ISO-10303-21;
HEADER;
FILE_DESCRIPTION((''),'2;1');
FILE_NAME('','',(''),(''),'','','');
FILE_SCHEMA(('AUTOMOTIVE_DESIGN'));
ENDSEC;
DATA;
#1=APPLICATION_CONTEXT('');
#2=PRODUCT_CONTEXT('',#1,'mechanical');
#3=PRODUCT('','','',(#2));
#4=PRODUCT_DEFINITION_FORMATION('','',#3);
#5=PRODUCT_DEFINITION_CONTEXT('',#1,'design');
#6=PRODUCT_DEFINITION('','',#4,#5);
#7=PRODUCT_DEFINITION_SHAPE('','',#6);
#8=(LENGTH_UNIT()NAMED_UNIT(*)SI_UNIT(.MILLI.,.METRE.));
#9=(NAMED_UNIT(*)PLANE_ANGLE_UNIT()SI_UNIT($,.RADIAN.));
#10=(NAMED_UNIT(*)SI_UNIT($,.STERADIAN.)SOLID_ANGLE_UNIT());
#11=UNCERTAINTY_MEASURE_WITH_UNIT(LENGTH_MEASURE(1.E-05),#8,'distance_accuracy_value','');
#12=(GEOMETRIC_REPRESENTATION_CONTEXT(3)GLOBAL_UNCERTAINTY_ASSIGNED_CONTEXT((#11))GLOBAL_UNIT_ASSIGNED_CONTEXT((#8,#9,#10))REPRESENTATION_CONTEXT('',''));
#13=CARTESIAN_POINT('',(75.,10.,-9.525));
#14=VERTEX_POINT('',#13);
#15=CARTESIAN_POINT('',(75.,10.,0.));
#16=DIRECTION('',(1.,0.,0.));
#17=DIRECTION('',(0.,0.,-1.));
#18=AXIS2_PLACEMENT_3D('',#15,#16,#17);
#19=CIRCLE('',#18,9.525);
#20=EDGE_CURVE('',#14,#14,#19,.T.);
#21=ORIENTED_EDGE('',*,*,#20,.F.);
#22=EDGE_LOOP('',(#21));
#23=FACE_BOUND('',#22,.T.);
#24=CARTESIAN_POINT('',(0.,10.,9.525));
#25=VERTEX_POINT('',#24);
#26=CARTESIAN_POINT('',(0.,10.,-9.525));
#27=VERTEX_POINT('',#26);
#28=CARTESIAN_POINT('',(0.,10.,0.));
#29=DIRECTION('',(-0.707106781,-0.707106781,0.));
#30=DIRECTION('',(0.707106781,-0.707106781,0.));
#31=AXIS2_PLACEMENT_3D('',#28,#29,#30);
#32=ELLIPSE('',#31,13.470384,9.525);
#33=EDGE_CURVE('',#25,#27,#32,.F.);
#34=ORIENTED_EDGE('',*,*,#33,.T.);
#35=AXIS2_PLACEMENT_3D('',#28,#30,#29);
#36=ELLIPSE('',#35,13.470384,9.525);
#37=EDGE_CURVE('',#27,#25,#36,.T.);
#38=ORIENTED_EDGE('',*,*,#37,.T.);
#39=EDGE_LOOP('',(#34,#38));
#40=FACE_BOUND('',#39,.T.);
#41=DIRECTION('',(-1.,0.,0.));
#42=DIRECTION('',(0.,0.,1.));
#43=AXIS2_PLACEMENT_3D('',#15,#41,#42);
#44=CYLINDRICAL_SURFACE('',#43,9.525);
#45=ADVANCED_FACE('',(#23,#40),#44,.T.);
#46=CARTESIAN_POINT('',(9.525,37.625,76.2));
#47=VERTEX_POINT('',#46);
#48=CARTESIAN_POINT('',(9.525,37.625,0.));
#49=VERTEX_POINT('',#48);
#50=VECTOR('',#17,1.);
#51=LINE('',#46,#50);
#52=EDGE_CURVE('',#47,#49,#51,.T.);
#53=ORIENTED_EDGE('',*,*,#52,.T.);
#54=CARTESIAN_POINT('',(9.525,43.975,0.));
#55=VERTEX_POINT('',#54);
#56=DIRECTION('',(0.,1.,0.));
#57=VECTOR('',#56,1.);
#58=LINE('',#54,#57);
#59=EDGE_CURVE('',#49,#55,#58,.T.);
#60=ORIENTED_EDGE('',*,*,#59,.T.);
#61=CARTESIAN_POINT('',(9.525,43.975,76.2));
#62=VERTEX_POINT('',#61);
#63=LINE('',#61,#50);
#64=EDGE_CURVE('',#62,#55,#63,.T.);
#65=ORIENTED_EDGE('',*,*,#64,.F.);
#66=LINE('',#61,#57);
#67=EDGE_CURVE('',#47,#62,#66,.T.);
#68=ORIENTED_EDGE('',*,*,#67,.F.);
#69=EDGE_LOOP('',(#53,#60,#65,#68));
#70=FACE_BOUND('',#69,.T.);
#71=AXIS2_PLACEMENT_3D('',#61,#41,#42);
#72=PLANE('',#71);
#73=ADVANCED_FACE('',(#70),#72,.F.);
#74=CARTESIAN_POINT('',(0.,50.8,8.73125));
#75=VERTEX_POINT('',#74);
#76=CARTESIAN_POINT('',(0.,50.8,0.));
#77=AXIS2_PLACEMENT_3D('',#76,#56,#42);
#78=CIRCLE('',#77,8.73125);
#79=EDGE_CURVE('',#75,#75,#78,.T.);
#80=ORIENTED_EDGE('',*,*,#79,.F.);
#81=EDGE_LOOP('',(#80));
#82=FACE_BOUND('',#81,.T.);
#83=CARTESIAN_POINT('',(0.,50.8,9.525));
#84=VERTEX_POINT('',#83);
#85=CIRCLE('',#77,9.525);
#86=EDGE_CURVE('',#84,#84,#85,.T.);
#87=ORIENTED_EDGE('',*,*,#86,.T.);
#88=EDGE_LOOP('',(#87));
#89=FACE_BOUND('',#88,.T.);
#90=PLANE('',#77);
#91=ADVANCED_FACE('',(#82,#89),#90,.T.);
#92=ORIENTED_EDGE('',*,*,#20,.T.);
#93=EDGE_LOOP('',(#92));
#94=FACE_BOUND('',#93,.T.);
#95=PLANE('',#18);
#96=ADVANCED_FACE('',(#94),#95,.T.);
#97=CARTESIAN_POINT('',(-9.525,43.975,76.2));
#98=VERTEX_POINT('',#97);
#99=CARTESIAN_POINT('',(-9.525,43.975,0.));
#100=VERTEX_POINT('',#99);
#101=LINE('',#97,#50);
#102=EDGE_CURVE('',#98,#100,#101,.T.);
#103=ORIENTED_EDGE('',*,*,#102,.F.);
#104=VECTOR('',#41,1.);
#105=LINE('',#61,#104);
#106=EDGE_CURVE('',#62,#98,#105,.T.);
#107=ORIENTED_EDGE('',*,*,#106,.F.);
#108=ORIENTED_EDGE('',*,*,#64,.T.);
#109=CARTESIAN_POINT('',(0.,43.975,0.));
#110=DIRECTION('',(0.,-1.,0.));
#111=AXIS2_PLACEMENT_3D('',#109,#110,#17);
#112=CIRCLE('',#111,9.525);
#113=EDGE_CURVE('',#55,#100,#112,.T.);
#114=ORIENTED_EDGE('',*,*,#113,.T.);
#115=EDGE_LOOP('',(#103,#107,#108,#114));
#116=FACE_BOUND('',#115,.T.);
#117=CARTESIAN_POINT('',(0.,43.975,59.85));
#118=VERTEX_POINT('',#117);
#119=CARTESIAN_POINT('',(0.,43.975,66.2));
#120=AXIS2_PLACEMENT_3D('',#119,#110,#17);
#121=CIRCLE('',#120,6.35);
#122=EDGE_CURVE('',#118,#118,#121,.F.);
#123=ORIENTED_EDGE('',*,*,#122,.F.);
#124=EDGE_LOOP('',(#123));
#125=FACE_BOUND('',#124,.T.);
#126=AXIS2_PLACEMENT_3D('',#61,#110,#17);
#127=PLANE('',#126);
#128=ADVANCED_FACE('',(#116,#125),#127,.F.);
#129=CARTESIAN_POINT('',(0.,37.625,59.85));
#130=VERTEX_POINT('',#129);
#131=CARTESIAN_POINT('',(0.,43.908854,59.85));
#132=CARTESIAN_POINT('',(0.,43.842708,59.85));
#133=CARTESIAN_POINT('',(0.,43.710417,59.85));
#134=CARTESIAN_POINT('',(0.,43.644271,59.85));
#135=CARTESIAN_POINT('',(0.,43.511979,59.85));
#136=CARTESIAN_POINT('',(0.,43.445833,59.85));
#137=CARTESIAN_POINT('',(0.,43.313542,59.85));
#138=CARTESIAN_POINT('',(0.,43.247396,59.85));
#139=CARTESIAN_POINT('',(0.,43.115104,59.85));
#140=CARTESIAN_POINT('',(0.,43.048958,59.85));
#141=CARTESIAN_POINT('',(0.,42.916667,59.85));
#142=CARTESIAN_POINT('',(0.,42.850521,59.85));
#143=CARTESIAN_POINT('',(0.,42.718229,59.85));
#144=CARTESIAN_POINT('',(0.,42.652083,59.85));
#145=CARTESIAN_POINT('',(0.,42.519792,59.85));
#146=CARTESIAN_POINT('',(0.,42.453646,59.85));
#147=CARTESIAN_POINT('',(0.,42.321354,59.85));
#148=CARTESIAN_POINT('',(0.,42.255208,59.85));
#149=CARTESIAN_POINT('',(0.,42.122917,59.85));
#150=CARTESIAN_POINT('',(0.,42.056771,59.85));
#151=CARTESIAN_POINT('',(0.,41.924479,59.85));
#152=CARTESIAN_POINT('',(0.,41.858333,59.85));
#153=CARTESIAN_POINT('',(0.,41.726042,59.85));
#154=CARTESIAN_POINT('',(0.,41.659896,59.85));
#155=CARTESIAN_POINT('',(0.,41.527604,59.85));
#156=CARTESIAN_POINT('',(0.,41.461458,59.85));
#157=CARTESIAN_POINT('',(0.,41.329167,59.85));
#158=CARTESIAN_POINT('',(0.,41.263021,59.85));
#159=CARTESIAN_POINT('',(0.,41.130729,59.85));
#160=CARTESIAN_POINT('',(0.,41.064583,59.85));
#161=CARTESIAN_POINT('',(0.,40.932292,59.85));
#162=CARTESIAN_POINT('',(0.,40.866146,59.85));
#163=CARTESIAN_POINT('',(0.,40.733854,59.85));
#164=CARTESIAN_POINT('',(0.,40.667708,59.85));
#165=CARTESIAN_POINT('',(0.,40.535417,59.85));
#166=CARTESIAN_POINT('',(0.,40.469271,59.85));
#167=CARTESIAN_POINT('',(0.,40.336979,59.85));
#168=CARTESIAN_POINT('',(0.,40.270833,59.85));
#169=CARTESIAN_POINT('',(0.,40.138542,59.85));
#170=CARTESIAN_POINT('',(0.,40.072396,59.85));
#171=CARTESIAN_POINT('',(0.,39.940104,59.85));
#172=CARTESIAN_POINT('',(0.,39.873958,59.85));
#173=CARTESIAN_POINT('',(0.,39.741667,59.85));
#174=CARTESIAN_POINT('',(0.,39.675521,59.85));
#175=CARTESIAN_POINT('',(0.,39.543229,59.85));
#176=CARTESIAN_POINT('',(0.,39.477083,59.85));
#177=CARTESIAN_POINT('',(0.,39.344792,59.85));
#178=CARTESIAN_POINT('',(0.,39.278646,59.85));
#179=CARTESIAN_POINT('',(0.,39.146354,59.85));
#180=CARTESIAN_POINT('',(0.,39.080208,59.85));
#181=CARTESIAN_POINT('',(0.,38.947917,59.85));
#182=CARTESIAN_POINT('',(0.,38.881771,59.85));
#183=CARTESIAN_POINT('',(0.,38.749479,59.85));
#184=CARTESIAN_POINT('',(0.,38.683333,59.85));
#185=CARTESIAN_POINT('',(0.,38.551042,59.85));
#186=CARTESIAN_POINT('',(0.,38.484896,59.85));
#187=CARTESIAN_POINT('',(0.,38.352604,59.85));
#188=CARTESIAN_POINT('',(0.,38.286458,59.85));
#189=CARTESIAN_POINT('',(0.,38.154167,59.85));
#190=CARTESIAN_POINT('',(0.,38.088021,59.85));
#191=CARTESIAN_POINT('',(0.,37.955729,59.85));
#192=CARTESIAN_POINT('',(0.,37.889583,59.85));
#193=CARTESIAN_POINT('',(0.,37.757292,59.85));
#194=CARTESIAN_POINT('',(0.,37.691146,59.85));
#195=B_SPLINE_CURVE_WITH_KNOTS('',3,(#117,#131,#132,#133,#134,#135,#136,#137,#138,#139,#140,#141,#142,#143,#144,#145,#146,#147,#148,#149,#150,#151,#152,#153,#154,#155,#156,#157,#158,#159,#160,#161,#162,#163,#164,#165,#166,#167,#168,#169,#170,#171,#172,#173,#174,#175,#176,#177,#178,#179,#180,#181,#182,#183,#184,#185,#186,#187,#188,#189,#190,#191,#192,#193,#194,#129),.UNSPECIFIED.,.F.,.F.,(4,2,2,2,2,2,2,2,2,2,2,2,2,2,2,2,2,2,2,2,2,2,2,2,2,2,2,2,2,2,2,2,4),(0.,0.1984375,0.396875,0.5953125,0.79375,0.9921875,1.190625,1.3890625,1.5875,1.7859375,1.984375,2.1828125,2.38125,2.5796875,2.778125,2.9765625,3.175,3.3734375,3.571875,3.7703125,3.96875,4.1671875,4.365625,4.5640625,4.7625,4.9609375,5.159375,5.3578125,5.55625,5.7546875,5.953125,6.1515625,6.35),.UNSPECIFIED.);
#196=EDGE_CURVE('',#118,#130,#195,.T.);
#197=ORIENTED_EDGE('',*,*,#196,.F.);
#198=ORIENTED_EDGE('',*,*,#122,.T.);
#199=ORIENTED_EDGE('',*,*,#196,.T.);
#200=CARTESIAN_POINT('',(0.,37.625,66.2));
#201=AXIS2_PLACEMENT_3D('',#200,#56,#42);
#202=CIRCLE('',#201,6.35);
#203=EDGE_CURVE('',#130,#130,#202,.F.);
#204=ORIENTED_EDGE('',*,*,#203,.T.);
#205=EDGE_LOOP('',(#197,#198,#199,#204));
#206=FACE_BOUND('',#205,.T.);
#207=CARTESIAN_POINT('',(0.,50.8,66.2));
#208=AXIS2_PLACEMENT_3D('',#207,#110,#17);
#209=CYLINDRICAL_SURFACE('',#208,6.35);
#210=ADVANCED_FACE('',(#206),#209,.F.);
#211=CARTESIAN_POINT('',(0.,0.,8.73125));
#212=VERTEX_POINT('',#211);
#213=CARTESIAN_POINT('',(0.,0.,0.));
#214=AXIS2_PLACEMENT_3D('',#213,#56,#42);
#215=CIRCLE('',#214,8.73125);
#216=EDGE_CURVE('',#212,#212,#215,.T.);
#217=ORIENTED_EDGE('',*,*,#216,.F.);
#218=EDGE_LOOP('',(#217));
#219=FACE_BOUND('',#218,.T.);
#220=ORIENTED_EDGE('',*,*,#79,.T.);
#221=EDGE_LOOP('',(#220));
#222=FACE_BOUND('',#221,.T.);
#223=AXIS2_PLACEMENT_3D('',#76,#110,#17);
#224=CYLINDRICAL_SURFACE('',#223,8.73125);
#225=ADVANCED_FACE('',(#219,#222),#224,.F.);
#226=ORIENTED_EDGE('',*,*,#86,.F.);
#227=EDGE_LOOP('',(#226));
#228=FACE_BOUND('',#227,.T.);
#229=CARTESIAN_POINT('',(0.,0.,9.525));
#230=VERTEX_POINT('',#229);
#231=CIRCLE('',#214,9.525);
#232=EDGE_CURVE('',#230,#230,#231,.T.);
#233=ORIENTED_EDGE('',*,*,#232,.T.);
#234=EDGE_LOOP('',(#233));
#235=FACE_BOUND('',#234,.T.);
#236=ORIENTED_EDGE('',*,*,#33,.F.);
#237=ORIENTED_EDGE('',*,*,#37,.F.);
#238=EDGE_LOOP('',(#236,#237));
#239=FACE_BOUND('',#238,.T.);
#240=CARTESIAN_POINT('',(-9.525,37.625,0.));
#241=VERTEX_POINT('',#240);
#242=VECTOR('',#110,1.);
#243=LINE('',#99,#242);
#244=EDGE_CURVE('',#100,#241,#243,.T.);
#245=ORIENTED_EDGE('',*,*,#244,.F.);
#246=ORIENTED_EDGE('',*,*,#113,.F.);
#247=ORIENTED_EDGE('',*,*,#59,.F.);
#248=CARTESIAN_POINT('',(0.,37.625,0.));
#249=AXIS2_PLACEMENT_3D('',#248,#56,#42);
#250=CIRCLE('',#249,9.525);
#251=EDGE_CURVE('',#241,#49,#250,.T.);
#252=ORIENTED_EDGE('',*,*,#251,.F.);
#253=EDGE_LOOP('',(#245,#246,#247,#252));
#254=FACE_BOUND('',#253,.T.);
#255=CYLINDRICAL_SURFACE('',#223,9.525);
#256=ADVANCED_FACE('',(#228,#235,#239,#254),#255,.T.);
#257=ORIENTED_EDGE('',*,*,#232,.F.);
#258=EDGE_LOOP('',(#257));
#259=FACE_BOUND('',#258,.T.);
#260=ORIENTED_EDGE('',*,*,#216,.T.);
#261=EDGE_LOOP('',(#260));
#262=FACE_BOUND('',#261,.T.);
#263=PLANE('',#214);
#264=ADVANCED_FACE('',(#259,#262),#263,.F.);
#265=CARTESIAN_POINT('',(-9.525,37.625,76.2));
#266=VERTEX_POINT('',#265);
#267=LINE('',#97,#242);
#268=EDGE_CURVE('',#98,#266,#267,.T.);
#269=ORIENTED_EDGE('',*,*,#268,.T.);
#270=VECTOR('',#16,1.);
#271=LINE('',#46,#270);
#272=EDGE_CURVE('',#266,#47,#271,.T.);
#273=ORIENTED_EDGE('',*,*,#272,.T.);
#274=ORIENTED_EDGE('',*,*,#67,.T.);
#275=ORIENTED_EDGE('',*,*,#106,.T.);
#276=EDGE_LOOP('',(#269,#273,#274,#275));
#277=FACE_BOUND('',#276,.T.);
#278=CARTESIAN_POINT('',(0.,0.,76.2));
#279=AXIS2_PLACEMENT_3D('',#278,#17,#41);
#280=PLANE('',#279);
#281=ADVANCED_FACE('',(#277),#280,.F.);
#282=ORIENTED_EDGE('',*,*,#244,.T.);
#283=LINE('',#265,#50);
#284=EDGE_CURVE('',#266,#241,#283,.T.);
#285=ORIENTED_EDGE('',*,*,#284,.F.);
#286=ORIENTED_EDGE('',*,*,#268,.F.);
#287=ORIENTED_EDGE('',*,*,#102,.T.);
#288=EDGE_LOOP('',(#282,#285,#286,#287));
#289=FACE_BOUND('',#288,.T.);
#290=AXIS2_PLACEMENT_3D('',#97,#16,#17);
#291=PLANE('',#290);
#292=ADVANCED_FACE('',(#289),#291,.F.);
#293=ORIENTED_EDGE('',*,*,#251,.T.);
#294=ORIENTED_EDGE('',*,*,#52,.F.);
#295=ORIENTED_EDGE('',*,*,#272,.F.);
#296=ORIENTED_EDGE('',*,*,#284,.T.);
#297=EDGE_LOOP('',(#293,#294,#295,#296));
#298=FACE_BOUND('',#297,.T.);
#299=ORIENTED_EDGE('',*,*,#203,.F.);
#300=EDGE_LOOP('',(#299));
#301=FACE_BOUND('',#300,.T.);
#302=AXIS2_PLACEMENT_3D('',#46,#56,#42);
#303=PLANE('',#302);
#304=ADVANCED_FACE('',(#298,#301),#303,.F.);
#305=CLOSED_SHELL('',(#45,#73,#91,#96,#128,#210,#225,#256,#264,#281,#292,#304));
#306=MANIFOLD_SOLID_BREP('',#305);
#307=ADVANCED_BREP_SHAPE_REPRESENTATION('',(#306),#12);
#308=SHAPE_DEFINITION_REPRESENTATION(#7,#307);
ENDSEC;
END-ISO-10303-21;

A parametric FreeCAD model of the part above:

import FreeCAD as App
import Part
import Sketcher
Q = App.Units.Quantity

doc = App.newDocument("Part")
params = doc.addObject("Spreadsheet::Sheet", "Params")
for row, (alias, value) in enumerate([
    ("sketch1_diameter", "0.75 in"),
    ("pad1_length", "2 in"),
    ("sketch2_width", "0.75 in"),
    ("sketch2_height", "0.25 in"),
    ("pad2_length", "3 in"),
    ("sketch3_diameter", "0.5 in"),
    ("sketch4_diameter", "0.75 in"),
    ("pad3_length", "75 mm"),
    ("sketch5_diameter", "0.6875 in"),
], start=1):
    params.set(f"A{row}", alias)
    params.set(f"B{row}", "=" + value)
    params.setAlias(f"B{row}", alias)

body = doc.addObject("PartDesign::Body", "Body")

# Sketch on XZ plane
sketch1 = doc.addObject("Sketcher::SketchObject", "Sketch")
body.addObject(sketch1)
sketch1.AttachmentSupport = (doc.XZ_Plane, [""])
sketch1.MapMode = "FlatFace"
sketch1.addGeometry(Part.Circle(App.Vector(0, 0, 0), App.Vector(0, 0, 1), 10), False)
sketch1.addConstraint([
    Sketcher.Constraint("Coincident", 0, 3, -1, 1),
    Sketcher.Constraint("Diameter", 0, Q("0.75 in")),
])
sketch1.setExpression("Constraints[1]", "Params.sketch1_diameter")
pad1 = doc.addObject("PartDesign::Pad", "Pad")
body.addObject(pad1)
pad1.Profile = sketch1
pad1.setExpression("Length", "Params.pad1_length")
pad1.Reversed = True

# Sketch on XY plane
sketch2 = doc.addObject("Sketcher::SketchObject", "Sketch001")
body.addObject(sketch2)
sketch2.AttachmentSupport = (doc.XY_Plane, [""])
sketch2.MapMode = "FlatFace"
sketch2.addGeometry([
    Part.LineSegment(App.Vector(-10, 44, 0), App.Vector(-10, 38, 0)),
    Part.LineSegment(App.Vector(-10, 38, 0), App.Vector(10, 38, 0)),
    Part.LineSegment(App.Vector(10, 38, 0), App.Vector(10, 44, 0)),
    Part.LineSegment(App.Vector(10, 44, 0), App.Vector(-10, 44, 0)),
], False)
sketch2.addConstraint([
    Sketcher.Constraint("Coincident", 0, 2, 1, 1),
    Sketcher.Constraint("Coincident", 1, 2, 2, 1),
    Sketcher.Constraint("Coincident", 2, 2, 3, 1),
    Sketcher.Constraint("Coincident", 3, 2, 0, 1),
    Sketcher.Constraint("Vertical", 0),
    Sketcher.Constraint("Horizontal", 1),
    Sketcher.Constraint("Vertical", 2),
    Sketcher.Constraint("Horizontal", 3),
    Sketcher.Constraint("DistanceX", 1, 1, 1, 2, Q("0.75 in")),
    Sketcher.Constraint("DistanceY", 0, 2, 0, 1, Q("0.25 in")),
    Sketcher.Constraint("DistanceX", 0, 2, -1, 1, Q("0.375 in")),
    Sketcher.Constraint("DistanceY", -1, 1, 0, 2, Q("37.625 mm")),
])
sketch2.setExpression("Constraints[8]", "Params.sketch2_width")
sketch2.setExpression("Constraints[9]", "Params.sketch2_height")
pad2 = doc.addObject("PartDesign::Pad", "Pad001")
body.addObject(pad2)
pad2.Profile = sketch2
pad2.setExpression("Length", "Params.pad2_length")

# Sketch on XZ plane
sketch3 = doc.addObject("Sketcher::SketchObject", "Sketch002")
body.addObject(sketch3)
sketch3.AttachmentSupport = (doc.XZ_Plane, [""])
sketch3.MapMode = "FlatFace"
sketch3.addGeometry(Part.Circle(App.Vector(0, 66, 0), App.Vector(0, 0, 1), 6), False)
sketch3.addConstraint([
    Sketcher.Constraint("PointOnObject", 0, 3, -2),
    Sketcher.Constraint("Diameter", 0, Q("0.5 in")),
    Sketcher.Constraint("DistanceY", -1, 1, 0, 3, Q("66.2 mm")),
])
sketch3.setExpression("Constraints[1]", "Params.sketch3_diameter")
pocket1 = doc.addObject("PartDesign::Pocket", "Pocket")
body.addObject(pocket1)
pocket1.Profile = sketch3
pocket1.Type = "ThroughAll"

# Sketch on YZ plane
sketch4 = doc.addObject("Sketcher::SketchObject", "Sketch003")
body.addObject(sketch4)
sketch4.AttachmentSupport = (doc.YZ_Plane, [""])
sketch4.MapMode = "FlatFace"
sketch4.addGeometry(Part.Circle(App.Vector(10, 0, 0), App.Vector(0, 0, 1), 10), False)
sketch4.addConstraint([
    Sketcher.Constraint("PointOnObject", 0, 3, -1),
    Sketcher.Constraint("Diameter", 0, Q("0.75 in")),
    Sketcher.Constraint("DistanceX", -1, 1, 0, 3, Q("10 mm")),
])
sketch4.setExpression("Constraints[1]", "Params.sketch4_diameter")
pad3 = doc.addObject("PartDesign::Pad", "Pad002")
body.addObject(pad3)
pad3.Profile = sketch4
pad3.setExpression("Length", "Params.pad3_length")

# Sketch on XZ plane
sketch5 = doc.addObject("Sketcher::SketchObject", "Sketch004")
body.addObject(sketch5)
sketch5.AttachmentSupport = (doc.XZ_Plane, [""])
sketch5.MapMode = "FlatFace"
sketch5.addGeometry(Part.Circle(App.Vector(0, 0, 0), App.Vector(0, 0, 1), 9), False)
sketch5.addConstraint([
    Sketcher.Constraint("Coincident", 0, 3, -1, 1),
    Sketcher.Constraint("Diameter", 0, Q("0.6875 in")),
])
sketch5.setExpression("Constraints[1]", "Params.sketch5_diameter")
pocket2 = doc.addObject("PartDesign::Pocket", "Pocket001")
body.addObject(pocket2)
pocket2.Profile = sketch5
pocket2.Type = "ThroughAll"

doc.recompute()
